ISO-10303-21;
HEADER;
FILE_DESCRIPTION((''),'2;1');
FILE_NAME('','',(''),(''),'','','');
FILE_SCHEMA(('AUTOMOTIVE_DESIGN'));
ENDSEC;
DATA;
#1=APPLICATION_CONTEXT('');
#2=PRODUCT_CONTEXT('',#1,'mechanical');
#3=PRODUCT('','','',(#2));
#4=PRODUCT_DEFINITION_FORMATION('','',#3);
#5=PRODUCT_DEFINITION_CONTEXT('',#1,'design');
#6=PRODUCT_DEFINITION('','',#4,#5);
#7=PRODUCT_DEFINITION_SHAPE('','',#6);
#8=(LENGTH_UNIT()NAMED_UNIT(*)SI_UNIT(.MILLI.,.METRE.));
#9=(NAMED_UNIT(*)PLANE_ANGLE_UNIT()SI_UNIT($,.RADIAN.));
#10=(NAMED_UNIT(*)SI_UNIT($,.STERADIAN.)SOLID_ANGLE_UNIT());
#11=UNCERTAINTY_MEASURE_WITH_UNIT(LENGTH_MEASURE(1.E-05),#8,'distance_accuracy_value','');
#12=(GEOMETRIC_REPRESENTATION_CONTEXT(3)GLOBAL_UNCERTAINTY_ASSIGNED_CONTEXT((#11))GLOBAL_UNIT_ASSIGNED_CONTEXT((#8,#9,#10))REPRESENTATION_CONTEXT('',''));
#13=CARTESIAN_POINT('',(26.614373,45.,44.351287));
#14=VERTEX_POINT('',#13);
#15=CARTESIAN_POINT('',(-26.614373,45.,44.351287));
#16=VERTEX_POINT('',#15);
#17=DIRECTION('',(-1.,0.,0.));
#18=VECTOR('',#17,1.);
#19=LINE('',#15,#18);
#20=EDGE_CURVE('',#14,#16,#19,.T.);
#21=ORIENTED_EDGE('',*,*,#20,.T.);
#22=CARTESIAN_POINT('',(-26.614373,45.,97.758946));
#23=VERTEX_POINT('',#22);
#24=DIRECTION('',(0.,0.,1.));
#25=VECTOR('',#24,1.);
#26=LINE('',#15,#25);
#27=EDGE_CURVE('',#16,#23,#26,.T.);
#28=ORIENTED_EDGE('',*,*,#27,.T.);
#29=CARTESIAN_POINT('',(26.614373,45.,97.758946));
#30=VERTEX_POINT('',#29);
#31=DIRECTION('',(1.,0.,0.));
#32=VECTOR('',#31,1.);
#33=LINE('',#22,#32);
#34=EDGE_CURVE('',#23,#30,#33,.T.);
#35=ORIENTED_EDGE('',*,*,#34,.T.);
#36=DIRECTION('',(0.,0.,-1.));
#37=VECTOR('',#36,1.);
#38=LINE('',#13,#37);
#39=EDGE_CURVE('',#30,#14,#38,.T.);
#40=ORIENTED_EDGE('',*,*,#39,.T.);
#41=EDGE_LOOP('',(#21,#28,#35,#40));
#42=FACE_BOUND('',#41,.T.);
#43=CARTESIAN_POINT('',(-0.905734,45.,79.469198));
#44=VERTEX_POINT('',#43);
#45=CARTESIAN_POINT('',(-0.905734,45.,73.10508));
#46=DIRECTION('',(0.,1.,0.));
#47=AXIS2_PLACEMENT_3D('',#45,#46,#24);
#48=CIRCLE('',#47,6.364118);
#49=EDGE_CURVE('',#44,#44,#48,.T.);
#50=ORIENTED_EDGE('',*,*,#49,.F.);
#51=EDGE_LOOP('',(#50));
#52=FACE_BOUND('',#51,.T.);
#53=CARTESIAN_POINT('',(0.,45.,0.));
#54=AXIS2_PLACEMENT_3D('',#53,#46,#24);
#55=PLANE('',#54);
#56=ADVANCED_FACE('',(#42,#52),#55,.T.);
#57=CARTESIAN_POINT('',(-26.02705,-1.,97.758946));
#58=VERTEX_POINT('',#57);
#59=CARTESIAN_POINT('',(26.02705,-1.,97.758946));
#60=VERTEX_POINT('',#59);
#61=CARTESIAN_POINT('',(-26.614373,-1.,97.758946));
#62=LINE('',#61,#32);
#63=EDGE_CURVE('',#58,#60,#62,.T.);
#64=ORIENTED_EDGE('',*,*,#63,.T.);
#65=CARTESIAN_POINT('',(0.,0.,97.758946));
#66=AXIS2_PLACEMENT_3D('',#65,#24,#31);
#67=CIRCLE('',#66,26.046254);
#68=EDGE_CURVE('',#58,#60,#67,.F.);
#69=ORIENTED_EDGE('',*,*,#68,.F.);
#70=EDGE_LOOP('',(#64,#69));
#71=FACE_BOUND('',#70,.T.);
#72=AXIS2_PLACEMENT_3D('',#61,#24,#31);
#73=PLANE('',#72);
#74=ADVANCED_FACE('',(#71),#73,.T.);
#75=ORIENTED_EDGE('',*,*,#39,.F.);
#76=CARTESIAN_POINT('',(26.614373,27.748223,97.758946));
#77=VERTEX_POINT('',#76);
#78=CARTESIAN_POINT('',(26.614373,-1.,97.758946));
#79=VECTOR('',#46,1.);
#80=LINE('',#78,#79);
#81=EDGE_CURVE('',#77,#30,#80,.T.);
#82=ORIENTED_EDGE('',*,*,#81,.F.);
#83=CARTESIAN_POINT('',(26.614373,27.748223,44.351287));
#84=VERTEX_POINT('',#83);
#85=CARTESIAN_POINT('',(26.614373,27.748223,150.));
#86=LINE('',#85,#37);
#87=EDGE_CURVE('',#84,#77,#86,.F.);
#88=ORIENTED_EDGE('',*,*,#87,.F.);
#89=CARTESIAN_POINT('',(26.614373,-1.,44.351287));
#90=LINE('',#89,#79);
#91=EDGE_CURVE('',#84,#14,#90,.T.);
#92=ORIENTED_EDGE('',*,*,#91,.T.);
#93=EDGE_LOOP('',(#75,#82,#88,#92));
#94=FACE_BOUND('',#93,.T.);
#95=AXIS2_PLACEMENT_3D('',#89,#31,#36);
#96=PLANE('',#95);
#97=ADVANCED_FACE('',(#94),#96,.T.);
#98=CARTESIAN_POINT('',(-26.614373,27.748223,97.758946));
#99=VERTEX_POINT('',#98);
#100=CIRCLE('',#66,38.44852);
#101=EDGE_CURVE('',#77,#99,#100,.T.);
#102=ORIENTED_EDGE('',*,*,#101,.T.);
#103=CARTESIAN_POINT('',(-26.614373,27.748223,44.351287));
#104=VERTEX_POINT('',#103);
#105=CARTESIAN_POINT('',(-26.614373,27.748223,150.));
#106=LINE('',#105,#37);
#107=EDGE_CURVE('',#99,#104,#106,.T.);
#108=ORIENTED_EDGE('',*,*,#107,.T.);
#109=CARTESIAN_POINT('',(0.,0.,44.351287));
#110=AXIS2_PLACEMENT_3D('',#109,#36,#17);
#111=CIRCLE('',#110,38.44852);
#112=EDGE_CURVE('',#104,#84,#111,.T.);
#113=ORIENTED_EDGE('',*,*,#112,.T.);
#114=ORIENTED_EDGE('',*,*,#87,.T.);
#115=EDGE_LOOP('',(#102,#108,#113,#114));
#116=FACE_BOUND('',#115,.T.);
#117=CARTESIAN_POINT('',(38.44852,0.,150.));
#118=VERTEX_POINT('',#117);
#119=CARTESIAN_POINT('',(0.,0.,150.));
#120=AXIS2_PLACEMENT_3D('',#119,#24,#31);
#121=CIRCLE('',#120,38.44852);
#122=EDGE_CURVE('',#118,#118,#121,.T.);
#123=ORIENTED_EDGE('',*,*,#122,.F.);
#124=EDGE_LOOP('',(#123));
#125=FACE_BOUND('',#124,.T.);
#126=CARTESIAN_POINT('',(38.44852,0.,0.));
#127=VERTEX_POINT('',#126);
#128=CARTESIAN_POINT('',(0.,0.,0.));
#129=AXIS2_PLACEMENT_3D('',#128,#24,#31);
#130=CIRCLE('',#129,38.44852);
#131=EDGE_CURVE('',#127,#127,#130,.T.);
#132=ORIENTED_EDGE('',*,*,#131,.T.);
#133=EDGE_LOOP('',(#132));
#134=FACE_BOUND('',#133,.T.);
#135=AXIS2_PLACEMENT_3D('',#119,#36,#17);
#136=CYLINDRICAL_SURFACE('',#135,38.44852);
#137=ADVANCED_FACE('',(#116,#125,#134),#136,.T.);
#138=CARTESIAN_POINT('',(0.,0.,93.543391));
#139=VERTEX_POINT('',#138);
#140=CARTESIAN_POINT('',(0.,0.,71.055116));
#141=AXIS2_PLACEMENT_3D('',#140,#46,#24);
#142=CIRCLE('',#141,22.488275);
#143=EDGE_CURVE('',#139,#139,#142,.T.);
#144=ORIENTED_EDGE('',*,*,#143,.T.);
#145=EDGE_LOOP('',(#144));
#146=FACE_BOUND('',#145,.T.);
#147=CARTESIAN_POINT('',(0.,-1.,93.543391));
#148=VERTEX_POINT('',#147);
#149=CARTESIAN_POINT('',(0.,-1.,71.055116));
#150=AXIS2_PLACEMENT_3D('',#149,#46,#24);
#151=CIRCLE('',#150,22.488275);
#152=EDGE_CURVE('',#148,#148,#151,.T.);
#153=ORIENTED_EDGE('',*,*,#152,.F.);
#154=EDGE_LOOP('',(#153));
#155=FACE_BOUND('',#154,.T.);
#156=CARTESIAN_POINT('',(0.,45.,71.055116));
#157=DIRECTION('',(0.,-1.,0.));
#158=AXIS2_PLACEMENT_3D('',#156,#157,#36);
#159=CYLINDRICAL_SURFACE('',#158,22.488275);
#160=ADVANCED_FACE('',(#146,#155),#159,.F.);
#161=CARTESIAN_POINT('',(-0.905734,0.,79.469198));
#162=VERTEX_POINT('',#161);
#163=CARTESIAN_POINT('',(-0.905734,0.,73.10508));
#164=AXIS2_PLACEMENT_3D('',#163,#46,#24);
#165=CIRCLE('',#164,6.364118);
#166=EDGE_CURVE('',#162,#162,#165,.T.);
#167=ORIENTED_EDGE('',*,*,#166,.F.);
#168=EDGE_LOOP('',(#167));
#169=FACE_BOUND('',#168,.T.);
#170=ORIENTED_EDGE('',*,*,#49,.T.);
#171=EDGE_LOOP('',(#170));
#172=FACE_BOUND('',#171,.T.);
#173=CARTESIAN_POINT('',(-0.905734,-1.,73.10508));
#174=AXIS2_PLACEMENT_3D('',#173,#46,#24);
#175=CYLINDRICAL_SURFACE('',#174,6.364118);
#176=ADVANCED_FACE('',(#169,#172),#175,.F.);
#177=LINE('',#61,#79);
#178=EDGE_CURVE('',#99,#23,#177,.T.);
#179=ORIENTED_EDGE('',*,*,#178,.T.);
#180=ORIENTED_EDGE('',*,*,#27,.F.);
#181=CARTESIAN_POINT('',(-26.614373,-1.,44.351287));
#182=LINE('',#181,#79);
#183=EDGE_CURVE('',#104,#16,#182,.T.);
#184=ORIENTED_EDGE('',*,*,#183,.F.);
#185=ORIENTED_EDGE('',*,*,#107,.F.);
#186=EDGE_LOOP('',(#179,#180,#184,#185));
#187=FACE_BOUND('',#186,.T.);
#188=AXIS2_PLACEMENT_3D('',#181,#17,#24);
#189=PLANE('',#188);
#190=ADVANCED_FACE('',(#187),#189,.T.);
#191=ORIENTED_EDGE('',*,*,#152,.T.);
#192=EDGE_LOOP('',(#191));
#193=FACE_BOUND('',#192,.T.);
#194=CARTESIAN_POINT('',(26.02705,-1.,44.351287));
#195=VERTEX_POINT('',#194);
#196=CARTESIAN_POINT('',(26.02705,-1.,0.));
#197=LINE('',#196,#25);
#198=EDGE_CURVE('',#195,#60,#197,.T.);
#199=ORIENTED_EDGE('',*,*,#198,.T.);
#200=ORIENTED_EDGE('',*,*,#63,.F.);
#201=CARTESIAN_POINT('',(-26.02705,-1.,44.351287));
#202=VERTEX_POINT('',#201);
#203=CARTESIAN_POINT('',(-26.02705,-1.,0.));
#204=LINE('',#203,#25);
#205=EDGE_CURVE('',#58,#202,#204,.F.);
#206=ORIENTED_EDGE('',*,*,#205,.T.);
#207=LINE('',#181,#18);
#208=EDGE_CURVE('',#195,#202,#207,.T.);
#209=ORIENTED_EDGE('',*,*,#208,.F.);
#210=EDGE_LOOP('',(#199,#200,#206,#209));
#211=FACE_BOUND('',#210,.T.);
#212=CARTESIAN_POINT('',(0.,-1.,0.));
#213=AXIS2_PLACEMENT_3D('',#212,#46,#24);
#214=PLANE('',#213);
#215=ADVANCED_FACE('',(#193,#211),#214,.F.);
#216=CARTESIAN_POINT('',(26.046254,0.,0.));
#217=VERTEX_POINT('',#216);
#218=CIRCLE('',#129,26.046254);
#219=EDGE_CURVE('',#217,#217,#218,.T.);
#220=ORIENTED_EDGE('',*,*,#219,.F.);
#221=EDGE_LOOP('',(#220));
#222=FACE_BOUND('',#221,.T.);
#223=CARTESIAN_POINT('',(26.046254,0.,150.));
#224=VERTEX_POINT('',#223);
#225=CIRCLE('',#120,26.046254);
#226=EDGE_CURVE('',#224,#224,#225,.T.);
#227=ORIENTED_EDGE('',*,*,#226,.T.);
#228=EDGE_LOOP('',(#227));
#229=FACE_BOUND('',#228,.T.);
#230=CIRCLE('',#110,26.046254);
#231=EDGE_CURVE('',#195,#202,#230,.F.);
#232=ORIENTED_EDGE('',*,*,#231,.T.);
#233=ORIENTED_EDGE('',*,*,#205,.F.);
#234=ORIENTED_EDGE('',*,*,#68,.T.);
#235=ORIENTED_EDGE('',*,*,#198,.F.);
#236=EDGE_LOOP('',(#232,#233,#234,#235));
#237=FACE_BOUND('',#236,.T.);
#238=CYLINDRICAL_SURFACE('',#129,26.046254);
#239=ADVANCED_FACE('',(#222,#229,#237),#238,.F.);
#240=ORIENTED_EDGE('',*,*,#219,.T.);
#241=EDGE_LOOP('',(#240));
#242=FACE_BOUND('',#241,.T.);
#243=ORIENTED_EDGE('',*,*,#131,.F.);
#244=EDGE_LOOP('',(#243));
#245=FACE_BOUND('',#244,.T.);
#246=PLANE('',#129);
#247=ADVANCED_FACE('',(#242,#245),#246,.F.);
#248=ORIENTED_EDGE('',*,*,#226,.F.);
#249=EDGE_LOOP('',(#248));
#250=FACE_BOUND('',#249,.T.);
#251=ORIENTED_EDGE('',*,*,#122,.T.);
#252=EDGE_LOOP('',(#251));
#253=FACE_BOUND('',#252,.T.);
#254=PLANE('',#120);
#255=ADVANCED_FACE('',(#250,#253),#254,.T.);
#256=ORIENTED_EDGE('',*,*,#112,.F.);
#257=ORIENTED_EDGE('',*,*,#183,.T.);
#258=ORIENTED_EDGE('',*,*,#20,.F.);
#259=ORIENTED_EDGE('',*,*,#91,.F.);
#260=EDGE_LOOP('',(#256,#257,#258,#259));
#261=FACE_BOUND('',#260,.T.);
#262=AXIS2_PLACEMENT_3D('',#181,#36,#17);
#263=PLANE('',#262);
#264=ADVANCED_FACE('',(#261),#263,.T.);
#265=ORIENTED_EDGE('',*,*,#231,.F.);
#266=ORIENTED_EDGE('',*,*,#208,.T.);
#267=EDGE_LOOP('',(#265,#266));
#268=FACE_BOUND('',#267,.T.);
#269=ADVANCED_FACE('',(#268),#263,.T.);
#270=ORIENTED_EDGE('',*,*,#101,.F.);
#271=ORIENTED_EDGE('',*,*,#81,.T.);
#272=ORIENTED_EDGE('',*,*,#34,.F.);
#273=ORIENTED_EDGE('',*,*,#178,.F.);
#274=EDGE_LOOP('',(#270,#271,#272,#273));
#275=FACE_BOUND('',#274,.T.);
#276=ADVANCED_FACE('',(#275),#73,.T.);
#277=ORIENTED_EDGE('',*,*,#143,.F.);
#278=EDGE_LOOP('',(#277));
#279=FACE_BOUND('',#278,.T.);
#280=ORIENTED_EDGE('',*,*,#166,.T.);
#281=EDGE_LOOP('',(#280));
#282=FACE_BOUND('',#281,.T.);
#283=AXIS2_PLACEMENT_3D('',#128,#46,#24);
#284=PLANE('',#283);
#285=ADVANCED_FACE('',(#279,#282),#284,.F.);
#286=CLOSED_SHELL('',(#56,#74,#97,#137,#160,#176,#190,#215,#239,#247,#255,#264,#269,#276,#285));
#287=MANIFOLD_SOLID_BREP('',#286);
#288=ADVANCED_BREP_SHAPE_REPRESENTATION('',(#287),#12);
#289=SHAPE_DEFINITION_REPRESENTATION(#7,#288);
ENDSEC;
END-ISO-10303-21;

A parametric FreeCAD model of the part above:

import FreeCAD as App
import Part
import Sketcher
from FreeCAD import Vector
Q = App.Units.Quantity

doc = App.newDocument("Part")
params = doc.addObject("Spreadsheet::Sheet", "Params")
for row, (alias, value) in enumerate([
    ("pad1_length", "150 mm"),
    ("pocket2_length", "39.44852 mm"),
    ("pocket2_length2", "1 mm"),
    ("pad2_length", "45 mm"),
    ("pad2_length2", "1 mm"),
    ("pocket3_length", "46 mm"),
    ("pocket3_length2", "1 mm"),
    ("pad3_length", "45 mm"),
    ("pocket4_length", "55 mm"),
    ("pocket4_length2", "1 mm"),
], start=1):
    params.set(f"A{row}", alias)
    params.set(f"B{row}", "=" + value)
    params.setAlias(f"B{row}", alias)

body = doc.addObject("PartDesign::Body", "Body")

# Sketch on XY plane
sketch1 = body.newObject("Sketcher::SketchObject", "Sketch")
sketch1.AttachmentSupport = (doc.getObject("XY_Plane"), [""])
sketch1.MapMode = "FlatFace"
sketch1.addGeometry(Part.Circle(Vector(0, 0, 0), Vector(0, 0, 1), 38), False)
sketch1.addConstraint([
    Sketcher.Constraint("Coincident", 0, 3, -1, 1),
    Sketcher.Constraint("Diameter", 0, Q("76.897041 mm")),
])
pad1 = body.newObject("PartDesign::Pad", "Pad")
pad1.Profile = sketch1
pad1.setExpression("Length", "Params.pad1_length")

# Sketch on XY plane
sketch2 = body.newObject("Sketcher::SketchObject", "Sketch001")
sketch2.AttachmentSupport = (doc.getObject("XY_Plane"), [""])
sketch2.MapMode = "FlatFace"
sketch2.AttachmentOffset = App.Placement(Vector(0, 0, 150), App.Rotation())
sketch2.addGeometry(Part.Circle(Vector(0, 0, 0), Vector(0, 0, 1), 26), False)
sketch2.addConstraint([
    Sketcher.Constraint("Coincident", 0, 3, -1, 1),
    Sketcher.Constraint("Diameter", 0, Q("52.092508 mm")),
])
pocket1 = body.newObject("PartDesign::Pocket", "Pocket")
pocket1.Profile = sketch2
pocket1.Type = "ThroughAll"
pocket1.Midplane = True

# Sketch on XZ plane
sketch3 = body.newObject("Sketcher::SketchObject", "Sketch002")
sketch3.AttachmentSupport = (doc.getObject("XZ_Plane"), [""])
sketch3.MapMode = "FlatFace"
sketch3.addGeometry(Part.Circle(Vector(0, 71, 0), Vector(0, 0, 1), 19), False)
sketch3.addConstraint([
    Sketcher.Constraint("PointOnObject", 0, 3, -2),
    Sketcher.Constraint("Diameter", 0, Q("37.371171 mm")),
    Sketcher.Constraint("DistanceY", -1, 1, 0, 3, Q("71.055116 mm")),
])
pocket2 = body.newObject("PartDesign::Pocket", "Pocket001")
pocket2.Profile = sketch3
pocket2.Type = "TwoLengths"
pocket2.setExpression("Length", "Params.pocket2_length")
pocket2.setExpression("Length2", "Params.pocket2_length2")

# Sketch on XZ plane
sketch4 = body.newObject("Sketcher::SketchObject", "Sketch003")
sketch4.AttachmentSupport = (doc.getObject("XZ_Plane"), [""])
sketch4.MapMode = "FlatFace"
sketch4.addGeometry([
    Part.LineSegment(Vector(-27, 44, 0), Vector(-27, 98, 0)),
    Part.LineSegment(Vector(-27, 98, 0), Vector(27, 98, 0)),
    Part.LineSegment(Vector(27, 98, 0), Vector(27, 44, 0)),
    Part.LineSegment(Vector(27, 44, 0), Vector(-27, 44, 0)),
], False)
sketch4.addConstraint([
    Sketcher.Constraint("Coincident", 0, 2, 1, 1),
    Sketcher.Constraint("Coincident", 1, 2, 2, 1),
    Sketcher.Constraint("Coincident", 2, 2, 3, 1),
    Sketcher.Constraint("Coincident", 3, 2, 0, 1),
    Sketcher.Constraint("Vertical", 0),
    Sketcher.Constraint("Horizontal", 1),
    Sketcher.Constraint("Vertical", 2),
    Sketcher.Constraint("Horizontal", 3),
    Sketcher.Constraint("DistanceY", 0, 1, 0, 2, Q("53.407659 mm")),
    Sketcher.Constraint("DistanceX", 1, 1, 1, 2, Q("53.228746 mm")),
    Sketcher.Constraint("DistanceX", 0, 2, -1, 1, Q("26.614373 mm")),
    Sketcher.Constraint("DistanceY", -1, 1, 0, 2, Q("97.758946 mm")),
])
pad2 = body.newObject("PartDesign::Pad", "Pad001")
pad2.Profile = sketch4
pad2.Type = "TwoLengths"
pad2.setExpression("Length", "Params.pad2_length")
pad2.setExpression("Length2", "Params.pad2_length2")
pad2.Reversed = True

# Sketch on XZ plane
sketch5 = body.newObject("Sketcher::SketchObject", "Sketch004")
sketch5.AttachmentSupport = (doc.getObject("XZ_Plane"), [""])
sketch5.MapMode = "FlatFace"
sketch5.addGeometry(Part.Circle(Vector(0, 71, 0), Vector(0, 0, 1), 22), False)
sketch5.addConstraint([
    Sketcher.Constraint("PointOnObject", 0, 3, -2),
    Sketcher.Constraint("Diameter", 0, Q("44.976549 mm")),
    Sketcher.Constraint("DistanceY", -1, 1, 0, 3, Q("71.055116 mm")),
])
pocket3 = body.newObject("PartDesign::Pocket", "Pocket002")
pocket3.Profile = sketch5
pocket3.Type = "TwoLengths"
pocket3.setExpression("Length", "Params.pocket3_length")
pocket3.setExpression("Length2", "Params.pocket3_length2")

# Sketch on XZ plane
sketch6 = body.newObject("Sketcher::SketchObject", "Sketch005")
sketch6.AttachmentSupport = (doc.getObject("XZ_Plane"), [""])
sketch6.MapMode = "FlatFace"
sketch6.addGeometry([
    Part.LineSegment(Vector(-27, 45, 0), Vector(-27, 98, 0)),
    Part.LineSegment(Vector(-27, 98, 0), Vector(27, 98, 0)),
    Part.LineSegment(Vector(27, 98, 0), Vector(27, 45, 0)),
    Part.LineSegment(Vector(27, 45, 0), Vector(-27, 45, 0)),
], False)
sketch6.addConstraint([
    Sketcher.Constraint("Coincident", 0, 2, 1, 1),
    Sketcher.Constraint("Coincident", 1, 2, 2, 1),
    Sketcher.Constraint("Coincident", 2, 2, 3, 1),
    Sketcher.Constraint("Coincident", 3, 2, 0, 1),
    Sketcher.Constraint("Vertical", 0),
    Sketcher.Constraint("Horizontal", 1),
    Sketcher.Constraint("Vertical", 2),
    Sketcher.Constraint("Horizontal", 3),
    Sketcher.Constraint("DistanceX", 1, 1, 1, 2, Q("53.228746 mm")),
    Sketcher.Constraint("DistanceY", 0, 1, 0, 2, Q("53.043516 mm")),
    Sketcher.Constraint("DistanceY", -1, 1, 2, 2, Q("44.71543 mm")),
    Sketcher.Constraint("DistanceX", 0, 2, -1, 1, Q("26.614373 mm")),
])
pad3 = body.newObject("PartDesign::Pad", "Pad002")
pad3.Profile = sketch6
pad3.setExpression("Length", "Params.pad3_length")
pad3.Reversed = True

# Sketch on XZ plane
sketch7 = body.newObject("Sketcher::SketchObject", "Sketch006")
sketch7.AttachmentSupport = (doc.getObject("XZ_Plane"), [""])
sketch7.MapMode = "FlatFace"
sketch7.addGeometry(Part.Circle(Vector(-1, 73, 0), Vector(0, 0, 1), 6), False)
sketch7.addConstraint([
    Sketcher.Constraint("Diameter", 0, Q("12.728236 mm")),
    Sketcher.Constraint("DistanceY", -1, 1, 0, 3, Q("73.10508 mm")),
    Sketcher.Constraint("DistanceX", 0, 3, -1, 1, Q("0.905734 mm")),
])
pocket4 = body.newObject("PartDesign::Pocket", "Pocket003")
pocket4.Profile = sketch7
pocket4.Type = "TwoLengths"
pocket4.setExpression("Length", "Params.pocket4_length")
pocket4.setExpression("Length2", "Params.pocket4_length2")

doc.recompute()
